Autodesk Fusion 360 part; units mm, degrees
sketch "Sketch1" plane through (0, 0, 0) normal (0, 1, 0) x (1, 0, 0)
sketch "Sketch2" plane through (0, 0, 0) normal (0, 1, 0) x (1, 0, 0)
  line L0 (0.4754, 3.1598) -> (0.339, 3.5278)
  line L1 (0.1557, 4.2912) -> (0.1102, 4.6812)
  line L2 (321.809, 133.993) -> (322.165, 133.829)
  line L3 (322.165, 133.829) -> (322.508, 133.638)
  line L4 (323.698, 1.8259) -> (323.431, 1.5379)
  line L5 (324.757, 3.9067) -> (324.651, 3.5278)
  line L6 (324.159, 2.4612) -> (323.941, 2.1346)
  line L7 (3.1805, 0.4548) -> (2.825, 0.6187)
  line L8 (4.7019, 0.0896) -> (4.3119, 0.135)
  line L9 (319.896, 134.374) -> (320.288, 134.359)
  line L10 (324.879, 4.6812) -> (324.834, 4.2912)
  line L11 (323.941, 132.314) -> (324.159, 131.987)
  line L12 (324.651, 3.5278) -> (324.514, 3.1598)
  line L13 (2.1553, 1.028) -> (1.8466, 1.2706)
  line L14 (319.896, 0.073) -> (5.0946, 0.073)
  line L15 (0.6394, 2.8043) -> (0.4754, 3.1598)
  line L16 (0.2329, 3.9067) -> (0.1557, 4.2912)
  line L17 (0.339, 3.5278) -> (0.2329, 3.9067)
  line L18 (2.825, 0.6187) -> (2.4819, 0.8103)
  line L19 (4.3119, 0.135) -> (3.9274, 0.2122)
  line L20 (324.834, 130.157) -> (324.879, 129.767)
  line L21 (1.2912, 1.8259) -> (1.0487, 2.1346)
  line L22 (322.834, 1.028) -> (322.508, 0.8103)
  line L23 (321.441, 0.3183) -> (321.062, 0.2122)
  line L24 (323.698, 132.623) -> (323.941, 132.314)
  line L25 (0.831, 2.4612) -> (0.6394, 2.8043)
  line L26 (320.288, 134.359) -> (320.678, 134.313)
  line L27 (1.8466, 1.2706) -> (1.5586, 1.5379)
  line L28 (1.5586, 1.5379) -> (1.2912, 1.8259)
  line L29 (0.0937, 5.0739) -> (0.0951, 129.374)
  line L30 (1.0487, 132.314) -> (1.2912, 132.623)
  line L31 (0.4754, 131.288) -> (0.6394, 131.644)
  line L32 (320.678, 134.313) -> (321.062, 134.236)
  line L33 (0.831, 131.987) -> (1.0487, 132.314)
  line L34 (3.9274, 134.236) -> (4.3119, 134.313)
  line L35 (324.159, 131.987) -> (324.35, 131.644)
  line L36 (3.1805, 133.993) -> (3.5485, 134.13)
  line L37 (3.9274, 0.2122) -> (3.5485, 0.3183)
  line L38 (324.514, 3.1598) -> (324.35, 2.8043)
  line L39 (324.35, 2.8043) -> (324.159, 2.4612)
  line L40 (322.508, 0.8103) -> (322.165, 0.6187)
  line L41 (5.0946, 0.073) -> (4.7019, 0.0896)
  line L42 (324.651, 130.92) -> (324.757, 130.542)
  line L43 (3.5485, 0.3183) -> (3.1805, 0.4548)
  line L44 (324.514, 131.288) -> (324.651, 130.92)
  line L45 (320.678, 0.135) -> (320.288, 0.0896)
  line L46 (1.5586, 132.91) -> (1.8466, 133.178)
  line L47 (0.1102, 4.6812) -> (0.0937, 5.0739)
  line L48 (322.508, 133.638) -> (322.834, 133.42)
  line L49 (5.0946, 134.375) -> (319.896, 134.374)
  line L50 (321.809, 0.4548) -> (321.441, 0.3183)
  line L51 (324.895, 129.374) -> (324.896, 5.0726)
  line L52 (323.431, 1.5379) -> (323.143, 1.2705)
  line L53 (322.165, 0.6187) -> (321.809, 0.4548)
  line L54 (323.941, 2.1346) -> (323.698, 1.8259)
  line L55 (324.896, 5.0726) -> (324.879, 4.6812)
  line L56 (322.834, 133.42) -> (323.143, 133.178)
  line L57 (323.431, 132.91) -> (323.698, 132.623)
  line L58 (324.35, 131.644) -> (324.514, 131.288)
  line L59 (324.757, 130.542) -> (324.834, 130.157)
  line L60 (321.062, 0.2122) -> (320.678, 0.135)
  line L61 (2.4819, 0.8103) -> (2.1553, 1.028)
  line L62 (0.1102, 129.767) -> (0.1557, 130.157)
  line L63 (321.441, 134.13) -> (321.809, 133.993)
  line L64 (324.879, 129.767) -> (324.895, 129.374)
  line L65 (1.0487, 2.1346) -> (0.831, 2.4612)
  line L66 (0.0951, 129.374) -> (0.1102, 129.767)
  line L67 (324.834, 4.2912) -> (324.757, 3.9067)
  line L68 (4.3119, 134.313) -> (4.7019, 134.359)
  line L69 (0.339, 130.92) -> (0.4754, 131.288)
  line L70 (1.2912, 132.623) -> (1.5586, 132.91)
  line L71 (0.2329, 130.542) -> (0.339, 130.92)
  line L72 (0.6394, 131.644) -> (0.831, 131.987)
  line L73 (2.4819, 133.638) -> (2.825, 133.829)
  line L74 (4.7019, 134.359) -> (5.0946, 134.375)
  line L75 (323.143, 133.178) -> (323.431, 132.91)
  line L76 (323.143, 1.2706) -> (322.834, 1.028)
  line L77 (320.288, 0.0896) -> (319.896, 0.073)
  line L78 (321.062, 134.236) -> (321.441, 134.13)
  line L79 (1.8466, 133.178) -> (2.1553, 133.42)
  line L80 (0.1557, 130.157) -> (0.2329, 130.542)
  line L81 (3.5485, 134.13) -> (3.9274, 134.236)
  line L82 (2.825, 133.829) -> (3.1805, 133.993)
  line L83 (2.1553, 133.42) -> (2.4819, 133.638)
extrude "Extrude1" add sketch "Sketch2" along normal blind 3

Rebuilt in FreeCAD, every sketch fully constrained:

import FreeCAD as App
import Part
import Sketcher
from FreeCAD import Vector

doc = App.newDocument("Part")
params = doc.addObject("Spreadsheet::Sheet", "Params")
for row, (alias, value) in enumerate([
    ("sketch1_length", "124.3 mm"),
    ("pad1_length", "3 mm"),
], start=1):
    params.set(f"A{row}", alias)
    params.set(f"B{row}", "=" + value)
    params.setAlias(f"B{row}", alias)

body = doc.addObject("PartDesign::Body", "Body")

sketch1 = body.newObject("Sketcher::SketchObject", "Sketch")
sketch1.AttachmentSupport = (doc.getObject("XZ_Plane"), [""])
sketch1.MapMode = "FlatFace"
sketch1.addGeometry([
    Part.LineSegment(Vector(0.339, -3.5278, 0), Vector(0.4754, -3.1598, 0)),
    Part.LineSegment(Vector(0.4754, -3.1598, 0), Vector(0.6394, -2.8043, 0)),
    Part.LineSegment(Vector(0.6394, -2.8043, 0), Vector(0.831, -2.4612, 0)),
    Part.LineSegment(Vector(0.831, -2.4612, 0), Vector(1.0487, -2.1346, 0)),
    Part.LineSegment(Vector(1.0487, -2.1346, 0), Vector(1.2912, -1.8259, 0)),
    Part.LineSegment(Vector(1.2912, -1.8259, 0), Vector(1.5586, -1.5379, 0)),
    Part.LineSegment(Vector(1.5586, -1.5379, 0), Vector(1.8466, -1.2706, 0)),
    Part.LineSegment(Vector(1.8466, -1.2706, 0), Vector(2.1553, -1.028, 0)),
    Part.LineSegment(Vector(2.1553, -1.028, 0), Vector(2.4819, -0.8103, 0)),
    Part.LineSegment(Vector(2.4819, -0.8103, 0), Vector(2.825, -0.6187, 0)),
    Part.LineSegment(Vector(2.825, -0.6187, 0), Vector(3.1805, -0.4548, 0)),
    Part.LineSegment(Vector(3.1805, -0.4548, 0), Vector(3.5485, -0.3183, 0)),
    Part.LineSegment(Vector(3.5485, -0.3183, 0), Vector(3.9274, -0.2122, 0)),
    Part.LineSegment(Vector(3.9274, -0.2122, 0), Vector(4.3119, -0.135, 0)),
    Part.LineSegment(Vector(4.3119, -0.135, 0), Vector(4.7019, -0.0896, 0)),
    Part.LineSegment(Vector(4.7019, -0.0896, 0), Vector(5.0946, -0.073, 0)),
    Part.LineSegment(Vector(5.0946, -0.073, 0), Vector(319.896, -0.073, 0)),
    Part.LineSegment(Vector(319.896, -0.073, 0), Vector(320.288, -0.0896, 0)),
    Part.LineSegment(Vector(320.288, -0.0896, 0), Vector(320.678, -0.135, 0)),
    Part.LineSegment(Vector(320.678, -0.135, 0), Vector(321.062, -0.2122, 0)),
    Part.LineSegment(Vector(321.062, -0.2122, 0), Vector(321.441, -0.3183, 0)),
    Part.LineSegment(Vector(321.441, -0.3183, 0), Vector(321.809, -0.4548, 0)),
    Part.LineSegment(Vector(321.809, -0.4548, 0), Vector(322.165, -0.6187, 0)),
    Part.LineSegment(Vector(322.165, -0.6187, 0), Vector(322.508, -0.8103, 0)),
    Part.LineSegment(Vector(322.508, -0.8103, 0), Vector(322.834, -1.028, 0)),
    Part.LineSegment(Vector(322.834, -1.028, 0), Vector(323.143, -1.2705, 0)),
    Part.LineSegment(Vector(323.143, -1.2705, 0), Vector(323.431, -1.5379, 0)),
    Part.LineSegment(Vector(323.431, -1.5379, 0), Vector(323.698, -1.8259, 0)),
    Part.LineSegment(Vector(323.698, -1.8259, 0), Vector(323.941, -2.1346, 0)),
    Part.LineSegment(Vector(323.941, -2.1346, 0), Vector(324.159, -2.4612, 0)),
    Part.LineSegment(Vector(324.159, -2.4612, 0), Vector(324.35, -2.8043, 0)),
    Part.LineSegment(Vector(324.35, -2.8043, 0), Vector(324.514, -3.1598, 0)),
    Part.LineSegment(Vector(324.514, -3.1598, 0), Vector(324.651, -3.5278, 0)),
    Part.LineSegment(Vector(324.651, -3.5278, 0), Vector(324.757, -3.9067, 0)),
    Part.LineSegment(Vector(324.757, -3.9067, 0), Vector(324.834, -4.2912, 0)),
    Part.LineSegment(Vector(324.834, -4.2912, 0), Vector(324.879, -4.6812, 0)),
    Part.LineSegment(Vector(324.879, -4.6812, 0), Vector(324.896, -5.0726, 0)),
    Part.LineSegment(Vector(324.896, -5.0726, 0), Vector(324.895, -129.374, 0)),
    Part.LineSegment(Vector(324.895, -129.374, 0), Vector(324.879, -129.767, 0)),
    Part.LineSegment(Vector(324.879, -129.767, 0), Vector(324.834, -130.157, 0)),
    Part.LineSegment(Vector(324.834, -130.157, 0), Vector(324.757, -130.542, 0)),
    Part.LineSegment(Vector(324.757, -130.542, 0), Vector(324.651, -130.92, 0)),
    Part.LineSegment(Vector(324.651, -130.92, 0), Vector(324.514, -131.288, 0)),
    Part.LineSegment(Vector(324.514, -131.288, 0), Vector(324.35, -131.644, 0)),
    Part.LineSegment(Vector(324.35, -131.644, 0), Vector(324.159, -131.987, 0)),
    Part.LineSegment(Vector(324.159, -131.987, 0), Vector(323.941, -132.314, 0)),
    Part.LineSegment(Vector(323.941, -132.314, 0), Vector(323.698, -132.623, 0)),
    Part.LineSegment(Vector(323.698, -132.623, 0), Vector(323.431, -132.91, 0)),
    Part.LineSegment(Vector(323.431, -132.91, 0), Vector(323.143, -133.178, 0)),
    Part.LineSegment(Vector(323.143, -133.178, 0), Vector(322.834, -133.42, 0)),
    Part.LineSegment(Vector(322.834, -133.42, 0), Vector(322.508, -133.638, 0)),
    Part.LineSegment(Vector(322.508, -133.638, 0), Vector(322.165, -133.829, 0)),
    Part.LineSegment(Vector(322.165, -133.829, 0), Vector(321.809, -133.993, 0)),
    Part.LineSegment(Vector(321.809, -133.993, 0), Vector(321.441, -134.13, 0)),
    Part.LineSegment(Vector(321.441, -134.13, 0), Vector(321.062, -134.236, 0)),
    Part.LineSegment(Vector(321.062, -134.236, 0), Vector(320.678, -134.313, 0)),
    Part.LineSegment(Vector(320.678, -134.313, 0), Vector(320.288, -134.359, 0)),
    Part.LineSegment(Vector(320.288, -134.359, 0), Vector(319.896, -134.374, 0)),
    Part.LineSegment(Vector(319.896, -134.374, 0), Vector(5.0946, -134.375, 0)),
    Part.LineSegment(Vector(5.0946, -134.375, 0), Vector(4.7019, -134.359, 0)),
    Part.LineSegment(Vector(4.7019, -134.359, 0), Vector(4.3119, -134.313, 0)),
    Part.LineSegment(Vector(4.3119, -134.313, 0), Vector(3.9274, -134.236, 0)),
    Part.LineSegment(Vector(3.9274, -134.236, 0), Vector(3.5485, -134.13, 0)),
    Part.LineSegment(Vector(3.5485, -134.13, 0), Vector(3.1805, -133.993, 0)),
    Part.LineSegment(Vector(3.1805, -133.993, 0), Vector(2.825, -133.829, 0)),
    Part.LineSegment(Vector(2.825, -133.829, 0), Vector(2.4819, -133.638, 0)),
    Part.LineSegment(Vector(2.4819, -133.638, 0), Vector(2.1553, -133.42, 0)),
    Part.LineSegment(Vector(2.1553, -133.42, 0), Vector(1.8466, -133.178, 0)),
    Part.LineSegment(Vector(1.8466, -133.178, 0), Vector(1.5586, -132.91, 0)),
    Part.LineSegment(Vector(1.5586, -132.91, 0), Vector(1.2912, -132.623, 0)),
    Part.LineSegment(Vector(1.2912, -132.623, 0), Vector(1.0487, -132.314, 0)),
    Part.LineSegment(Vector(1.0487, -132.314, 0), Vector(0.831, -131.987, 0)),
    Part.LineSegment(Vector(0.831, -131.987, 0), Vector(0.6394, -131.644, 0)),
    Part.LineSegment(Vector(0.6394, -131.644, 0), Vector(0.4754, -131.288, 0)),
    Part.LineSegment(Vector(0.4754, -131.288, 0), Vector(0.339, -130.92, 0)),
    Part.LineSegment(Vector(0.339, -130.92, 0), Vector(0.2329, -130.542, 0)),
    Part.LineSegment(Vector(0.2329, -130.542, 0), Vector(0.1557, -130.157, 0)),
    Part.LineSegment(Vector(0.1557, -130.157, 0), Vector(0.1102, -129.767, 0)),
    Part.LineSegment(Vector(0.1102, -129.767, 0), Vector(0.0951, -129.374, 0)),
    Part.LineSegment(Vector(0.0951, -129.374, 0), Vector(0.0937, -5.0739, 0)),
    Part.LineSegment(Vector(0.0937, -5.0739, 0), Vector(0.1102, -4.6812, 0)),
    Part.LineSegment(Vector(0.1102, -4.6812, 0), Vector(0.1557, -4.2912, 0)),
    Part.LineSegment(Vector(0.1557, -4.2912, 0), Vector(0.2329, -3.9067, 0)),
    Part.LineSegment(Vector(0.2329, -3.9067, 0), Vector(0.339, -3.5278, 0)),
], False)
sketch1.addConstraint([
    Sketcher.Constraint("Coincident", 0, 2, 1, 1),
    Sketcher.Constraint("Coincident", 1, 2, 2, 1),
    Sketcher.Constraint("Coincident", 2, 2, 3, 1),
    Sketcher.Constraint("Coincident", 3, 2, 4, 1),
    Sketcher.Constraint("Coincident", 4, 2, 5, 1),
    Sketcher.Constraint("Coincident", 5, 2, 6, 1),
    Sketcher.Constraint("Coincident", 6, 2, 7, 1),
    Sketcher.Constraint("Coincident", 7, 2, 8, 1),
    Sketcher.Constraint("Coincident", 8, 2, 9, 1),
    Sketcher.Constraint("Coincident", 9, 2, 10, 1),
    Sketcher.Constraint("Coincident", 10, 2, 11, 1),
    Sketcher.Constraint("Coincident", 11, 2, 12, 1),
    Sketcher.Constraint("Coincident", 12, 2, 13, 1),
    Sketcher.Constraint("Coincident", 13, 2, 14, 1),
    Sketcher.Constraint("Coincident", 14, 2, 15, 1),
    Sketcher.Constraint("Coincident", 15, 2, 16, 1),
    Sketcher.Constraint("Coincident", 16, 2, 17, 1),
    Sketcher.Constraint("Coincident", 17, 2, 18, 1),
    Sketcher.Constraint("Coincident", 18, 2, 19, 1),
    Sketcher.Constraint("Coincident", 19, 2, 20, 1),
    Sketcher.Constraint("Coincident", 20, 2, 21, 1),
    Sketcher.Constraint("Coincident", 21, 2, 22, 1),
    Sketcher.Constraint("Coincident", 22, 2, 23, 1),
    Sketcher.Constraint("Coincident", 23, 2, 24, 1),
    Sketcher.Constraint("Coincident", 24, 2, 25, 1),
    Sketcher.Constraint("Coincident", 25, 2, 26, 1),
    Sketcher.Constraint("Coincident", 26, 2, 27, 1),
    Sketcher.Constraint("Coincident", 27, 2, 28, 1),
    Sketcher.Constraint("Coincident", 28, 2, 29, 1),
    Sketcher.Constraint("Coincident", 29, 2, 30, 1),
    Sketcher.Constraint("Coincident", 30, 2, 31, 1),
    Sketcher.Constraint("Coincident", 31, 2, 32, 1),
    Sketcher.Constraint("Coincident", 32, 2, 33, 1),
    Sketcher.Constraint("Coincident", 33, 2, 34, 1),
    Sketcher.Constraint("Coincident", 34, 2, 35, 1),
    Sketcher.Constraint("Coincident", 35, 2, 36, 1),
    Sketcher.Constraint("Coincident", 36, 2, 37, 1),
    Sketcher.Constraint("Coincident", 37, 2, 38, 1),
    Sketcher.Constraint("Coincident", 38, 2, 39, 1),
    Sketcher.Constraint("Coincident", 39, 2, 40, 1),
    Sketcher.Constraint("Coincident", 40, 2, 41, 1),
    Sketcher.Constraint("Coincident", 41, 2, 42, 1),
    Sketcher.Constraint("Coincident", 42, 2, 43, 1),
    Sketcher.Constraint("Coincident", 43, 2, 44, 1),
    Sketcher.Constraint("Coincident", 44, 2, 45, 1),
    Sketcher.Constraint("Coincident", 45, 2, 46, 1),
    Sketcher.Constraint("Coincident", 46, 2, 47, 1),
    Sketcher.Constraint("Coincident", 47, 2, 48, 1),
    Sketcher.Constraint("Coincident", 48, 2, 49, 1),
    Sketcher.Constraint("Coincident", 49, 2, 50, 1),
    Sketcher.Constraint("Coincident", 50, 2, 51, 1),
    Sketcher.Constraint("Coincident", 51, 2, 52, 1),
    Sketcher.Constraint("Coincident", 52, 2, 53, 1),
    Sketcher.Constraint("Coincident", 53, 2, 54, 1),
    Sketcher.Constraint("Coincident", 54, 2, 55, 1),
    Sketcher.Constraint("Coincident", 55, 2, 56, 1),
    Sketcher.Constraint("Coincident", 56, 2, 57, 1),
    Sketcher.Constraint("Coincident", 57, 2, 58, 1),
    Sketcher.Constraint("Coincident", 58, 2, 59, 1),
    Sketcher.Constraint("Coincident", 59, 2, 60, 1),
    Sketcher.Constraint("Coincident", 60, 2, 61, 1),
    Sketcher.Constraint("Coincident", 61, 2, 62, 1),
    Sketcher.Constraint("Coincident", 62, 2, 63, 1),
    Sketcher.Constraint("Coincident", 63, 2, 64, 1),
    Sketcher.Constraint("Coincident", 64, 2, 65, 1),
    Sketcher.Constraint("Coincident", 65, 2, 66, 1),
    Sketcher.Constraint("Coincident", 66, 2, 67, 1),
    Sketcher.Constraint("Coincident", 67, 2, 68, 1),
    Sketcher.Constraint("Coincident", 68, 2, 69, 1),
    Sketcher.Constraint("Coincident", 69, 2, 70, 1),
    Sketcher.Constraint("Coincident", 70, 2, 71, 1),
    Sketcher.Constraint("Coincident", 71, 2, 72, 1),
    Sketcher.Constraint("Coincident", 72, 2, 73, 1),
    Sketcher.Constraint("Coincident", 73, 2, 74, 1),
    Sketcher.Constraint("Coincident", 74, 2, 75, 1),
    Sketcher.Constraint("Coincident", 75, 2, 76, 1),
    Sketcher.Constraint("Coincident", 76, 2, 77, 1),
    Sketcher.Constraint("Coincident", 77, 2, 78, 1),
    Sketcher.Constraint("Coincident", 78, 2, 79, 1),
    Sketcher.Constraint("Coincident", 79, 2, 80, 1),
    Sketcher.Constraint("Coincident", 80, 2, 81, 1),
    Sketcher.Constraint("Coincident", 81, 2, 82, 1),
    Sketcher.Constraint("Coincident", 82, 2, 83, 1),
    Sketcher.Constraint("Coincident", 83, 2, 0, 1),
    Sketcher.Constraint("Horizontal", 16),
    Sketcher.Constraint("Distance", 79, 124.3),
    Sketcher.Constraint("DistanceX", -1, 1, 30, 2, 324.35),
    Sketcher.Constraint("DistanceY", 41, 2, -1, 1, 130.92),
    Sketcher.Constraint("DistanceX", -1, 1, 43, 2, 324.35),
    Sketcher.Constraint("DistanceY", 47, 2, -1, 1, 132.91),
    Sketcher.Constraint("DistanceY", 49, 2, -1, 1, 133.42),
    Sketcher.Constraint("DistanceY", 53, 2, -1, 1, 134.13),
    Sketcher.Constraint("DistanceY", 62, 2, -1, 1, 134.13),
    Sketcher.Constraint("DistanceY", 66, 2, -1, 1, 133.42),
    Sketcher.Constraint("DistanceY", 68, 2, -1, 1, 132.91),
    Sketcher.Constraint("DistanceY", 74, 2, -1, 1, 130.92),
    Sketcher.Constraint("Distance", 2, 0.393),
    Sketcher.Constraint("Distance", 5, 0.393),
    Sketcher.Constraint("Distance", 6, 0.393),
    Sketcher.Constraint("Distance", 9, 0.393),
    Sketcher.Constraint("Distance", 15, 0.393),
    Sketcher.Constraint("Distance", 22, 0.392),
    Sketcher.Constraint("Distance", 23, 0.393),
    Sketcher.Constraint("Distance", 24, 0.392),
    Sketcher.Constraint("Distance", 26, 0.393),
    Sketcher.Constraint("Distance", 43, 0.392),
    Sketcher.Constraint("Distance", 45, 0.393),
    Sketcher.Constraint("Distance", 46, 0.393),
    Sketcher.Constraint("Distance", 47, 0.392),
    Sketcher.Constraint("Distance", 52, 0.392),
    Sketcher.Constraint("Distance", 59, 0.393),
    Sketcher.Constraint("Distance", 72, 0.393),
    Sketcher.Constraint("Distance", 73, 0.392),
    Sketcher.Constraint("Distance", 80, 0.393),
    Sketcher.Constraint("DistanceX", 16, 1, 16, 2, 314.8014),
    Sketcher.Constraint("DistanceX", -1, 1, 2, 2, 0.831),
    Sketcher.Constraint("DistanceY", 4, 2, -1, 1, 1.826),
    Sketcher.Constraint("DistanceY", 5, 2, -1, 1, 1.538),
    Sketcher.Constraint("DistanceY", 7, 2, -1, 1, 1.028),
    Sketcher.Constraint("DistanceX", -1, 1, 8, 2, 2.482),
    Sketcher.Constraint("DistanceX", -1, 1, 9, 2, 2.825),
    Sketcher.Constraint("DistanceX", -1, 1, 13, 2, 4.312),
    Sketcher.Constraint("DistanceY", 13, 2, -1, 1, 0.135),
    Sketcher.Constraint("DistanceX", -1, 1, 14, 2, 4.702),
    Sketcher.Constraint("DistanceY", 15, 2, -1, 1, 0.073),
    Sketcher.Constraint("DistanceX", -1, 1, 16, 2, 319.896),
    Sketcher.Constraint("DistanceX", -1, 1, 17, 2, 320.288),
    Sketcher.Constraint("DistanceX", -1, 1, 18, 2, 320.678),
    Sketcher.Constraint("DistanceY", 18, 2, -1, 1, 0.135),
    Sketcher.Constraint("DistanceX", -1, 1, 19, 2, 321.062),
    Sketcher.Constraint("DistanceX", -1, 1, 20, 2, 321.441),
    Sketcher.Constraint("DistanceX", -1, 1, 21, 2, 321.809),
    Sketcher.Constraint("DistanceX", -1, 1, 22, 2, 322.165),
    Sketcher.Constraint("DistanceX", -1, 1, 23, 2, 322.508),
    Sketcher.Constraint("DistanceX", -1, 1, 24, 2, 322.834),
    Sketcher.Constraint("DistanceY", 24, 2, -1, 1, 1.028),
    Sketcher.Constraint("DistanceX", -1, 1, 25, 2, 323.143),
    Sketcher.Constraint("DistanceX", -1, 1, 26, 2, 323.431),
    Sketcher.Constraint("DistanceY", 26, 2, -1, 1, 1.538),
    Sketcher.Constraint("DistanceX", -1, 1, 27, 2, 323.698),
    Sketcher.Constraint("DistanceY", 27, 2, -1, 1, 1.826),
    Sketcher.Constraint("DistanceX", -1, 1, 28, 2, 323.941),
    Sketcher.Constraint("DistanceX", -1, 1, 29, 2, 324.159),
    Sketcher.Constraint("DistanceX", -1, 1, 31, 2, 324.514),
    Sketcher.Constraint("DistanceX", -1, 1, 32, 2, 324.651),
    Sketcher.Constraint("DistanceX", -1, 1, 33, 2, 324.757),
    Sketcher.Constraint("DistanceX", -1, 1, 34, 2, 324.834),
    Sketcher.Constraint("DistanceX", -1, 1, 35, 2, 324.879),
    Sketcher.Constraint("DistanceX", -1, 1, 36, 2, 324.896),
    Sketcher.Constraint("DistanceX", -1, 1, 37, 2, 324.895),
    Sketcher.Constraint("DistanceY", 37, 2, -1, 1, 129.374),
    Sketcher.Constraint("DistanceX", -1, 1, 38, 2, 324.879),
    Sketcher.Constraint("DistanceY", 38, 2, -1, 1, 129.767),
    Sketcher.Constraint("DistanceX", -1, 1, 39, 2, 324.834),
    Sketcher.Constraint("DistanceY", 39, 2, -1, 1, 130.157),
    Sketcher.Constraint("DistanceX", -1, 1, 40, 2, 324.757),
    Sketcher.Constraint("DistanceY", 40, 2, -1, 1, 130.542),
    Sketcher.Constraint("DistanceX", -1, 1, 41, 2, 324.651),
    Sketcher.Constraint("DistanceX", -1, 1, 42, 2, 324.514),
    Sketcher.Constraint("DistanceY", 42, 2, -1, 1, 131.288),
    Sketcher.Constraint("DistanceX", -1, 1, 44, 2, 324.159),
    Sketcher.Constraint("DistanceY", 44, 2, -1, 1, 131.987),
    Sketcher.Constraint("DistanceX", -1, 1, 45, 2, 323.941),
    Sketcher.Constraint("DistanceX", -1, 1, 46, 2, 323.698),
    Sketcher.Constraint("DistanceX", -1, 1, 48, 2, 323.143),
    Sketcher.Constraint("DistanceY", 48, 2, -1, 1, 133.178),
    Sketcher.Constraint("DistanceX", -1, 1, 49, 2, 322.834),
    Sketcher.Constraint("DistanceX", -1, 1, 50, 2, 322.508),
    Sketcher.Constraint("DistanceY", 50, 2, -1, 1, 133.638),
    Sketcher.Constraint("DistanceX", -1, 1, 51, 2, 322.165),
    Sketcher.Constraint("DistanceY", 51, 2, -1, 1, 133.829),
    Sketcher.Constraint("DistanceX", -1, 1, 52, 2, 321.809),
    Sketcher.Constraint("DistanceX", -1, 1, 53, 2, 321.441),
    Sketcher.Constraint("DistanceX", -1, 1, 54, 2, 321.062),
    Sketcher.Constraint("DistanceY", 54, 2, -1, 1, 134.236),
    Sketcher.Constraint("DistanceX", -1, 1, 55, 2, 320.678),
    Sketcher.Constraint("DistanceY", 55, 2, -1, 1, 134.313),
    Sketcher.Constraint("DistanceX", -1, 1, 56, 2, 320.288),
    Sketcher.Constraint("DistanceY", 56, 2, -1, 1, 134.359),
    Sketcher.Constraint("DistanceX", -1, 1, 57, 2, 319.896),
    Sketcher.Constraint("DistanceY", 57, 2, -1, 1, 134.374),
    Sketcher.Constraint("DistanceY", 58, 2, -1, 1, 134.375),
    Sketcher.Constraint("DistanceX", -1, 1, 59, 2, 4.702),
    Sketcher.Constraint("DistanceY", 59, 2, -1, 1, 134.359),
    Sketcher.Constraint("DistanceX", -1, 1, 60, 2, 4.312),
    Sketcher.Constraint("DistanceY", 60, 2, -1, 1, 134.313),
    Sketcher.Constraint("DistanceY", 61, 2, -1, 1, 134.236),
    Sketcher.Constraint("DistanceY", 63, 2, -1, 1, 133.993),
    Sketcher.Constraint("DistanceX", -1, 1, 64, 2, 2.825),
    Sketcher.Constraint("DistanceY", 64, 2, -1, 1, 133.829),
    Sketcher.Constraint("DistanceX", -1, 1, 65, 2, 2.482),
    Sketcher.Constraint("DistanceY", 65, 2, -1, 1, 133.638),
    Sketcher.Constraint("DistanceY", 67, 2, -1, 1, 133.178),
    Sketcher.Constraint("DistanceY", 69, 2, -1, 1, 132.623),
    Sketcher.Constraint("DistanceY", 70, 2, -1, 1, 132.314),
    Sketcher.Constraint("DistanceX", -1, 1, 71, 2, 0.831),
    Sketcher.Constraint("DistanceY", 71, 2, -1, 1, 131.987),
    Sketcher.Constraint("DistanceY", 72, 2, -1, 1, 131.644),
    Sketcher.Constraint("DistanceY", 73, 2, -1, 1, 131.288),
    Sketcher.Constraint("DistanceX", -1, 1, 74, 2, 0.339),
    Sketcher.Constraint("DistanceX", -1, 1, 75, 2, 0.233),
    Sketcher.Constraint("DistanceY", 75, 2, -1, 1, 130.542),
    Sketcher.Constraint("DistanceY", 76, 2, -1, 1, 130.157),
    Sketcher.Constraint("DistanceY", 77, 2, -1, 1, 129.767),
    Sketcher.Constraint("DistanceX", -1, 1, 78, 2, 0.095),
    Sketcher.Constraint("DistanceY", 78, 2, -1, 1, 129.374),
    Sketcher.Constraint("DistanceX", -1, 1, 82, 2, 0.233),
    Sketcher.Constraint("DistanceX", -1, 1, 83, 2, 0.339),
    Sketcher.Constraint("Distance", 0, 0.3925),
    Sketcher.Constraint("Distance", 1, 0.3915),
    Sketcher.Constraint("Distance", 3, 0.3925),
    Sketcher.Constraint("Distance", 4, 0.3926),
    Sketcher.Constraint("Distance", 7, 0.3926),
    Sketcher.Constraint("Distance", 8, 0.3925),
    Sketcher.Constraint("Distance", 10, 0.3915),
    Sketcher.Constraint("Distance", 11, 0.3925),
    Sketcher.Constraint("Distance", 12, 0.3935),
    Sketcher.Constraint("Distance", 13, 0.3922),
    Sketcher.Constraint("Distance", 17, 0.3924),
    Sketcher.Constraint("Distance", 19, 0.3917),
    Sketcher.Constraint("Distance", 20, 0.3936),
    Sketcher.Constraint("Distance", 28, 0.3929),
    Sketcher.Constraint("Distance", 29, 0.3927),
    Sketcher.Constraint("Distance", 30, 0.3927),
    Sketcher.Constraint("Distance", 31, 0.3915),
    Sketcher.Constraint("Distance", 32, 0.3927),
    Sketcher.Constraint("Distance", 33, 0.3934),
    Sketcher.Constraint("Distance", 34, 0.3921),
    Sketcher.Constraint("Distance", 35, 0.3926),
    Sketcher.Constraint("Distance", 36, 0.3918),
    Sketcher.Constraint("Distance", 61, 0.3921),
    Sketcher.Constraint("Distance", 62, 0.3934),
    Sketcher.Constraint("Distance", 63, 0.3927),
    Sketcher.Constraint("Distance", 66, 0.3927),
    Sketcher.Constraint("Distance", 67, 0.3922),
    Sketcher.Constraint("Distance", 68, 0.3934),
    Sketcher.Constraint("Distance", 69, 0.3923),
    Sketcher.Constraint("Distance", 70, 0.3928),
    Sketcher.Constraint("Distance", 76, 0.3927),
    Sketcher.Constraint("Distance", 77, 0.3926),
    Sketcher.Constraint("Distance", 81, 0.3926),
    Sketcher.Constraint("Distance", 82, 0.3922),
    Sketcher.Constraint("Distance", 83, 0.3935),
    Sketcher.Constraint("DistanceX", -1, 1, 0, 2, 0.4754),
    Sketcher.Constraint("DistanceY", 0, 2, -1, 1, 3.1598),
    Sketcher.Constraint("DistanceX", -1, 1, 1, 2, 0.6394),
    Sketcher.Constraint("DistanceX", -1, 1, 3, 2, 1.0487),
    Sketcher.Constraint("DistanceX", -1, 1, 6, 2, 1.8466),
    Sketcher.Constraint("DistanceX", -1, 1, 10, 2, 3.1805),
    Sketcher.Constraint("DistanceX", -1, 1, 11, 2, 3.5485),
    Sketcher.Constraint("DistanceX", -1, 1, 79, 2, 0.0937),
    Sketcher.Constraint("DistanceX", -1, 1, 80, 2, 0.1102),
])
sketch1.setExpression("Constraints[85]", "Params.sketch1_length")
pad1 = body.newObject("PartDesign::Pad", "Pad")
pad1.Profile = sketch1
pad1.setExpression("Length", "Params.pad1_length")
pad1.Reversed = True

doc.recompute()
